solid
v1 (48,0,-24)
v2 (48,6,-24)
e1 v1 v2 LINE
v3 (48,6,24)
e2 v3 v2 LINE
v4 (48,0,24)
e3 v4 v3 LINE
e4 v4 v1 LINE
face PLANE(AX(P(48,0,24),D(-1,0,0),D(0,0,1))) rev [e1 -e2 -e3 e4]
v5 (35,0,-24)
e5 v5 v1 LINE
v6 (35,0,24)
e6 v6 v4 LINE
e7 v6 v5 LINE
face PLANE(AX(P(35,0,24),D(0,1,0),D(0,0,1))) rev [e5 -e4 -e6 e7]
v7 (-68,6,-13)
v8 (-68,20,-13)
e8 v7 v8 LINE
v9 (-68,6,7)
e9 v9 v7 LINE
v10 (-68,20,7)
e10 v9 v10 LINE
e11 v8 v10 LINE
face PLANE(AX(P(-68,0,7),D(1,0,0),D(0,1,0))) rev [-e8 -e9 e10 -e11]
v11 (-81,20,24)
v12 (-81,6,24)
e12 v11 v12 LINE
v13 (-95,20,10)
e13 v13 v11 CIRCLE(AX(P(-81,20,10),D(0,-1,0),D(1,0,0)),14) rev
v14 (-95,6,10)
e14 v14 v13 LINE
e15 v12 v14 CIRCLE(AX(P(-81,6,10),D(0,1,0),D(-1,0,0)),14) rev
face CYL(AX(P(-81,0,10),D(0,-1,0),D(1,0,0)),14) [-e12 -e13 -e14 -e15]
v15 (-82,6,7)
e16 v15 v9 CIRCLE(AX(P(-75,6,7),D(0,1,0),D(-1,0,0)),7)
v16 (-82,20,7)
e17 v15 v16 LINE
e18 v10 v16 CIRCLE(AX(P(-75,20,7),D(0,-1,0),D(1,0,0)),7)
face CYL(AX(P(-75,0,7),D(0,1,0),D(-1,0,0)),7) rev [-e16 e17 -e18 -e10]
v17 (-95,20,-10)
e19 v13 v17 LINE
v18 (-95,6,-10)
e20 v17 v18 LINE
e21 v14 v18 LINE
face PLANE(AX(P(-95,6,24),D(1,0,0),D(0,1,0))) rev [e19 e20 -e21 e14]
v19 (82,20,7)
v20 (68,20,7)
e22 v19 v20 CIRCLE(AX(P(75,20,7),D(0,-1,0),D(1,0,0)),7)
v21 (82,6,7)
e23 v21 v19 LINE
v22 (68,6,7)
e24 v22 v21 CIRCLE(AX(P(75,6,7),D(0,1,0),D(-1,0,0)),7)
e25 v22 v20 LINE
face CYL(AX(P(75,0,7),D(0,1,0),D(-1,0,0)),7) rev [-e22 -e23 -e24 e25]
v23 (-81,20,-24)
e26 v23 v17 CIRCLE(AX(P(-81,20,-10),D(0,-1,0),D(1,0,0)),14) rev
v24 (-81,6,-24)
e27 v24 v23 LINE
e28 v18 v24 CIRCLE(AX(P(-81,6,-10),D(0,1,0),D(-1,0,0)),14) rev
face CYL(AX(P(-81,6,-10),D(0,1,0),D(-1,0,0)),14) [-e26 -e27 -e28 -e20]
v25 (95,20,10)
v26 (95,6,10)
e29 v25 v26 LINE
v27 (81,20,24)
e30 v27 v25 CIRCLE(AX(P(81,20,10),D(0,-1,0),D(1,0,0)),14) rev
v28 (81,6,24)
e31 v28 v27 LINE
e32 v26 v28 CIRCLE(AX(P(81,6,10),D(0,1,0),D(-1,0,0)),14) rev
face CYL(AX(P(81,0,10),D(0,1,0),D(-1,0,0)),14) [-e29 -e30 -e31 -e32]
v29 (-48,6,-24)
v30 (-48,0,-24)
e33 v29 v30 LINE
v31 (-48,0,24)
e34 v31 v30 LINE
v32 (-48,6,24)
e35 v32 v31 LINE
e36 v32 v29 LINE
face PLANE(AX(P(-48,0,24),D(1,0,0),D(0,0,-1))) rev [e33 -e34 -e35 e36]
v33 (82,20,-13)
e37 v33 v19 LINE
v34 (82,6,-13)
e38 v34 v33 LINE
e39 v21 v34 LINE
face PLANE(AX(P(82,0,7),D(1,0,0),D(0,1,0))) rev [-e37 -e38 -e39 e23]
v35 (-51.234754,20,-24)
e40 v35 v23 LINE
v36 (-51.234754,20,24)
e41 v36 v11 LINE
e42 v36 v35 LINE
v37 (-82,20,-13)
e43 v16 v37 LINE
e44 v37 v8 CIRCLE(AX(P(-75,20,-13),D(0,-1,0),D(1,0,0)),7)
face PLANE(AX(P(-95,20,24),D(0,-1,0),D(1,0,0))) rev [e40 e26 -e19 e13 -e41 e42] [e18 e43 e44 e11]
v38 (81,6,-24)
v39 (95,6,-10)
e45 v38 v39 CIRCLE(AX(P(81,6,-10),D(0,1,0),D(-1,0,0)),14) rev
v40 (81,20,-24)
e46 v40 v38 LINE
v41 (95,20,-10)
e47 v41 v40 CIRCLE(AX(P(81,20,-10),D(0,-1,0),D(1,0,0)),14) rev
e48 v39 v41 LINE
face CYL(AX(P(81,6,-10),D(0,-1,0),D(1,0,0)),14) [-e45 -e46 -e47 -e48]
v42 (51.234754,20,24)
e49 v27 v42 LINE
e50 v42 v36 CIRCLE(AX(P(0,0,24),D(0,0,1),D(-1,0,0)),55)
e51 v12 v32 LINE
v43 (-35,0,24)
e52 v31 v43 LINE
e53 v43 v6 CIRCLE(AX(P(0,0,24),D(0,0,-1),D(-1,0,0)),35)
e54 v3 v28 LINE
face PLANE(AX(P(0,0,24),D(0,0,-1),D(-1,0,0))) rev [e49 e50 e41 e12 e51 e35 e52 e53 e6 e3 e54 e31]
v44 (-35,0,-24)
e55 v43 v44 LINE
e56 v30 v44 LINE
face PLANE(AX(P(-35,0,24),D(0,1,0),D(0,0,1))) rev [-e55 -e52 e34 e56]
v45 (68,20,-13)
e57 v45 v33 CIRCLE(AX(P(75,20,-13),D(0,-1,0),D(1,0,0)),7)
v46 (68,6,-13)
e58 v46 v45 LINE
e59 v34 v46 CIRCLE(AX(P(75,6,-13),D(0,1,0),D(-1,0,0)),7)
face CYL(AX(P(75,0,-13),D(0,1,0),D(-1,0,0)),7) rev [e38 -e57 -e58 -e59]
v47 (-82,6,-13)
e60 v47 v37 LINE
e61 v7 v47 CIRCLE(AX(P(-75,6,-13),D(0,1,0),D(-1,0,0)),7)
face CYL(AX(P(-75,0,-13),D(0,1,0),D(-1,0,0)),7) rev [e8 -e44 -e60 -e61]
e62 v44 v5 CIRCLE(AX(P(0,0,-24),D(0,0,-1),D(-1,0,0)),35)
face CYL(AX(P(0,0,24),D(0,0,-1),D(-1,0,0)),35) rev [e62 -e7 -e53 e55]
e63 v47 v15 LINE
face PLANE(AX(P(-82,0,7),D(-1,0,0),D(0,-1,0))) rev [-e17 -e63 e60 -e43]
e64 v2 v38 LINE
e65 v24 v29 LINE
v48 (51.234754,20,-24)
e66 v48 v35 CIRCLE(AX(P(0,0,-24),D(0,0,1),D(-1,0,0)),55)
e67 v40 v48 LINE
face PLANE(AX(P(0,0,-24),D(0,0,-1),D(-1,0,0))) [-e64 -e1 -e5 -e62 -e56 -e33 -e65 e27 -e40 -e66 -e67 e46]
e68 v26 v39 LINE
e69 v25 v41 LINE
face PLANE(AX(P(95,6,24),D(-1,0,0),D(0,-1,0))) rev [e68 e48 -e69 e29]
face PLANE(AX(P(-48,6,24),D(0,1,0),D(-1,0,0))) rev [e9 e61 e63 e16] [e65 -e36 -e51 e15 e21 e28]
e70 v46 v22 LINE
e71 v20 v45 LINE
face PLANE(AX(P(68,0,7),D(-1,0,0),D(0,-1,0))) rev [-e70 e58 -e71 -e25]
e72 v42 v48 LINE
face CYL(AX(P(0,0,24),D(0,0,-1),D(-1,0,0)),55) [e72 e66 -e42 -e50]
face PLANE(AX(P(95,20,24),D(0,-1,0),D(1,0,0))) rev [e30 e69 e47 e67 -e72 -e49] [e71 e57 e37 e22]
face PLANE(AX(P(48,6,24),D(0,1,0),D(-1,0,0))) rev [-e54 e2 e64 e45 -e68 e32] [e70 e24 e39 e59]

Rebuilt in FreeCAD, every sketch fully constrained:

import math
import FreeCAD as App
import Part
import Sketcher
Q = App.Units.Quantity


def edges_at(feature, points):
    """Names of the edges that pass closest to the given points."""
    edges = feature.Shape.Edges
    near = lambda p: min(range(len(edges)), key=lambda i: edges[i].distToShape(Part.Vertex(*p))[0])
    return sorted({f"Edge{near(p) + 1}" for p in points})

doc = App.newDocument("Part")
body = doc.addObject("PartDesign::Body", "Body")

# Sketch on XY plane
sketch1 = body.newObject("Sketcher::SketchObject", "Sketch")
sketch1.AttachmentSupport = (doc.getObject("XY_Plane"), [""])
sketch1.MapMode = "FlatFace"
sketch1.addGeometry(Part.LineSegment(App.Vector(35, 0, 0), App.Vector(48, 0, 0)), False)
sketch1.addGeometry(Part.LineSegment(App.Vector(48, 0, 0), App.Vector(48, 6, 0)), False)
sketch1.addGeometry(Part.LineSegment(App.Vector(48, 6, 0), App.Vector(95, 6, 0)), False)
sketch1.addGeometry(Part.LineSegment(App.Vector(95, 6, 0), App.Vector(95, 20, 0)), False)
sketch1.addGeometry(Part.LineSegment(App.Vector(95, 20, 0), App.Vector(51, 20, 0)), False)
sketch1.addGeometry(Part.ArcOfCircle(Part.Circle(App.Vector(0, 0, 0), App.Vector(0, 0, 1), 55), math.radians(21), math.radians(159)), False)
sketch1.addGeometry(Part.LineSegment(App.Vector(-51, 20, 0), App.Vector(-95, 20, 0)), False)
sketch1.addGeometry(Part.LineSegment(App.Vector(-95, 20, 0), App.Vector(-95, 6, 0)), False)
sketch1.addGeometry(Part.LineSegment(App.Vector(-95, 6, 0), App.Vector(-48, 6, 0)), False)
sketch1.addGeometry(Part.LineSegment(App.Vector(-48, 6, 0), App.Vector(-48, 0, 0)), False)
sketch1.addGeometry(Part.LineSegment(App.Vector(-48, 0, 0), App.Vector(-35, 0, 0)), False)
sketch1.addGeometry(Part.ArcOfCircle(Part.Circle(App.Vector(0, 0, 0), App.Vector(0, 0, 1), 35), math.radians(0), math.radians(180)), False)
sketch1.addConstraint(Sketcher.Constraint("Coincident", 0, 2, 1, 1))
sketch1.addConstraint(Sketcher.Constraint("Coincident", 1, 2, 2, 1))
sketch1.addConstraint(Sketcher.Constraint("Coincident", 2, 2, 3, 1))
sketch1.addConstraint(Sketcher.Constraint("Coincident", 3, 2, 4, 1))
sketch1.addConstraint(Sketcher.Constraint("Coincident", 4, 2, 5, 1))
sketch1.addConstraint(Sketcher.Constraint("Coincident", 5, 2, 6, 1))
sketch1.addConstraint(Sketcher.Constraint("Coincident", 6, 2, 7, 1))
sketch1.addConstraint(Sketcher.Constraint("Coincident", 7, 2, 8, 1))
sketch1.addConstraint(Sketcher.Constraint("Coincident", 8, 2, 9, 1))
sketch1.addConstraint(Sketcher.Constraint("Coincident", 9, 2, 10, 1))
sketch1.addConstraint(Sketcher.Constraint("Coincident", 10, 2, 11, 2))
sketch1.addConstraint(Sketcher.Constraint("Coincident", 11, 1, 0, 1))
sketch1.addConstraint(Sketcher.Constraint("Horizontal", 0))
sketch1.addConstraint(Sketcher.Constraint("Vertical", 1))
sketch1.addConstraint(Sketcher.Constraint("Horizontal", 2))
sketch1.addConstraint(Sketcher.Constraint("Vertical", 3))
sketch1.addConstraint(Sketcher.Constraint("Horizontal", 4))
sketch1.addConstraint(Sketcher.Constraint("Horizontal", 6))
sketch1.addConstraint(Sketcher.Constraint("Vertical", 7))
sketch1.addConstraint(Sketcher.Constraint("Horizontal", 8))
sketch1.addConstraint(Sketcher.Constraint("Vertical", 9))
sketch1.addConstraint(Sketcher.Constraint("Horizontal", 10))
sketch1.addConstraint(Sketcher.Constraint("Coincident", 5, 3, -1, 1))
sketch1.addConstraint(Sketcher.Constraint("Coincident", 11, 3, -1, 1))
sketch1.addConstraint(Sketcher.Constraint("Symmetric", 0, 2, 9, 2, -1, 1))
sketch1.addConstraint(Sketcher.Constraint("Symmetric", 3, 2, 6, 2, -2))
sketch1.addConstraint(Sketcher.Constraint("PointOnObject", 0, 2, -1))
sketch1.addConstraint(Sketcher.Constraint("Horizontal", 2, 2, 7, 2))
sketch1.addConstraint(Sketcher.Constraint("Radius", 5, Q("55 mm")))
sketch1.addConstraint(Sketcher.Constraint("Radius", 11, Q("35 mm")))
sketch1.addConstraint(Sketcher.Constraint("DistanceX", 0, 1, 0, 2, Q("13 mm")))
sketch1.addConstraint(Sketcher.Constraint("DistanceX", 2, 1, 2, 2, Q("47 mm")))
sketch1.addConstraint(Sketcher.Constraint("DistanceY", 1, 1, 1, 2, Q("6 mm")))
sketch1.addConstraint(Sketcher.Constraint("DistanceY", 3, 1, 3, 2, Q("14 mm")))
pad1 = body.newObject("PartDesign::Pad", "Pad")
pad1.Profile = sketch1
pad1.Length = 48
pad1.Midplane = True
doc.recompute()

fillet = body.newObject("PartDesign::Fillet", "Fillet")
fillet.Base = (pad1, edges_at(pad1, [
    (95, 13, -24),
    (-95, 13, -24),
    (95, 13, 24),
    (-95, 13, 24),
]))
fillet.Radius = 14

# Sketch on XZ plane
sketch2 = body.newObject("Sketcher::SketchObject", "Sketch001")
sketch2.AttachmentSupport = (doc.getObject("XZ_Plane"), [""])
sketch2.MapMode = "FlatFace"
sketch2.AttachmentOffset = App.Placement(App.Vector(0, 0, -20), App.Rotation())
sketch2.addGeometry(Part.LineSegment(App.Vector(68, -13, 0), App.Vector(68, 7, 0)), False)
sketch2.addGeometry(Part.ArcOfCircle(Part.Circle(App.Vector(75, 7, 0), App.Vector(0, 0, 1), 7), math.radians(0), math.radians(180)), False)
sketch2.addGeometry(Part.LineSegment(App.Vector(82, 7, 0), App.Vector(82, -13, 0)), False)
sketch2.addGeometry(Part.ArcOfCircle(Part.Circle(App.Vector(75, -13, 0), App.Vector(0, 0, 1), 7), math.radians(180), math.radians(360)), False)
sketch2.addGeometry(Part.LineSegment(App.Vector(-68, 7, 0), App.Vector(-68, -13, 0)), False)
sketch2.addGeometry(Part.ArcOfCircle(Part.Circle(App.Vector(-75, -13, 0), App.Vector(0, 0, 1), 7), math.radians(180), math.radians(360)), False)
sketch2.addGeometry(Part.LineSegment(App.Vector(-82, -13, 0), App.Vector(-82, 7, 0)), False)
sketch2.addGeometry(Part.ArcOfCircle(Part.Circle(App.Vector(-75, 7, 0), App.Vector(0, 0, 1), 7), math.radians(0), math.radians(180)), False)
sketch2.addConstraint(Sketcher.Constraint("Tangent", 0, 2, 1, 2))
sketch2.addConstraint(Sketcher.Constraint("Tangent", 1, 1, 2, 1))
sketch2.addConstraint(Sketcher.Constraint("Tangent", 2, 2, 3, 2))
sketch2.addConstraint(Sketcher.Constraint("Tangent", 3, 1, 0, 1))
sketch2.addConstraint(Sketcher.Constraint("Tangent", 4, 2, 5, 2))
sketch2.addConstraint(Sketcher.Constraint("Tangent", 5, 1, 6, 1))
sketch2.addConstraint(Sketcher.Constraint("Tangent", 6, 2, 7, 2))
sketch2.addConstraint(Sketcher.Constraint("Tangent", 7, 1, 4, 1))
sketch2.addConstraint(Sketcher.Constraint("Vertical", 0))
sketch2.addConstraint(Sketcher.Constraint("Vertical", 2))
sketch2.addConstraint(Sketcher.Constraint("Vertical", 4))
sketch2.addConstraint(Sketcher.Constraint("Vertical", 6))
sketch2.addConstraint(Sketcher.Constraint("Equal", 3, 5))
sketch2.addConstraint(Sketcher.Constraint("Symmetric", 3, 3, 5, 3, -2))
sketch2.addConstraint(Sketcher.Constraint("Horizontal", 1, 3, 7, 3))
sketch2.addConstraint(Sketcher.Constraint("Radius", 1, Q("7 mm")))
sketch2.addConstraint(Sketcher.Constraint("DistanceY", 0, 1, 0, 2, Q("20 mm")))
sketch2.addConstraint(Sketcher.Constraint("DistanceX", -1, 1, 1, 3, Q("75 mm")))
sketch2.addConstraint(Sketcher.Constraint("DistanceY", -1, 1, 1, 3, Q("7 mm")))
pocket1 = body.newObject("PartDesign::Pocket", "Pocket")
pocket1.Profile = sketch2
pocket1.Type = "ThroughAll"
pocket1.Midplane = True

doc.recompute()
